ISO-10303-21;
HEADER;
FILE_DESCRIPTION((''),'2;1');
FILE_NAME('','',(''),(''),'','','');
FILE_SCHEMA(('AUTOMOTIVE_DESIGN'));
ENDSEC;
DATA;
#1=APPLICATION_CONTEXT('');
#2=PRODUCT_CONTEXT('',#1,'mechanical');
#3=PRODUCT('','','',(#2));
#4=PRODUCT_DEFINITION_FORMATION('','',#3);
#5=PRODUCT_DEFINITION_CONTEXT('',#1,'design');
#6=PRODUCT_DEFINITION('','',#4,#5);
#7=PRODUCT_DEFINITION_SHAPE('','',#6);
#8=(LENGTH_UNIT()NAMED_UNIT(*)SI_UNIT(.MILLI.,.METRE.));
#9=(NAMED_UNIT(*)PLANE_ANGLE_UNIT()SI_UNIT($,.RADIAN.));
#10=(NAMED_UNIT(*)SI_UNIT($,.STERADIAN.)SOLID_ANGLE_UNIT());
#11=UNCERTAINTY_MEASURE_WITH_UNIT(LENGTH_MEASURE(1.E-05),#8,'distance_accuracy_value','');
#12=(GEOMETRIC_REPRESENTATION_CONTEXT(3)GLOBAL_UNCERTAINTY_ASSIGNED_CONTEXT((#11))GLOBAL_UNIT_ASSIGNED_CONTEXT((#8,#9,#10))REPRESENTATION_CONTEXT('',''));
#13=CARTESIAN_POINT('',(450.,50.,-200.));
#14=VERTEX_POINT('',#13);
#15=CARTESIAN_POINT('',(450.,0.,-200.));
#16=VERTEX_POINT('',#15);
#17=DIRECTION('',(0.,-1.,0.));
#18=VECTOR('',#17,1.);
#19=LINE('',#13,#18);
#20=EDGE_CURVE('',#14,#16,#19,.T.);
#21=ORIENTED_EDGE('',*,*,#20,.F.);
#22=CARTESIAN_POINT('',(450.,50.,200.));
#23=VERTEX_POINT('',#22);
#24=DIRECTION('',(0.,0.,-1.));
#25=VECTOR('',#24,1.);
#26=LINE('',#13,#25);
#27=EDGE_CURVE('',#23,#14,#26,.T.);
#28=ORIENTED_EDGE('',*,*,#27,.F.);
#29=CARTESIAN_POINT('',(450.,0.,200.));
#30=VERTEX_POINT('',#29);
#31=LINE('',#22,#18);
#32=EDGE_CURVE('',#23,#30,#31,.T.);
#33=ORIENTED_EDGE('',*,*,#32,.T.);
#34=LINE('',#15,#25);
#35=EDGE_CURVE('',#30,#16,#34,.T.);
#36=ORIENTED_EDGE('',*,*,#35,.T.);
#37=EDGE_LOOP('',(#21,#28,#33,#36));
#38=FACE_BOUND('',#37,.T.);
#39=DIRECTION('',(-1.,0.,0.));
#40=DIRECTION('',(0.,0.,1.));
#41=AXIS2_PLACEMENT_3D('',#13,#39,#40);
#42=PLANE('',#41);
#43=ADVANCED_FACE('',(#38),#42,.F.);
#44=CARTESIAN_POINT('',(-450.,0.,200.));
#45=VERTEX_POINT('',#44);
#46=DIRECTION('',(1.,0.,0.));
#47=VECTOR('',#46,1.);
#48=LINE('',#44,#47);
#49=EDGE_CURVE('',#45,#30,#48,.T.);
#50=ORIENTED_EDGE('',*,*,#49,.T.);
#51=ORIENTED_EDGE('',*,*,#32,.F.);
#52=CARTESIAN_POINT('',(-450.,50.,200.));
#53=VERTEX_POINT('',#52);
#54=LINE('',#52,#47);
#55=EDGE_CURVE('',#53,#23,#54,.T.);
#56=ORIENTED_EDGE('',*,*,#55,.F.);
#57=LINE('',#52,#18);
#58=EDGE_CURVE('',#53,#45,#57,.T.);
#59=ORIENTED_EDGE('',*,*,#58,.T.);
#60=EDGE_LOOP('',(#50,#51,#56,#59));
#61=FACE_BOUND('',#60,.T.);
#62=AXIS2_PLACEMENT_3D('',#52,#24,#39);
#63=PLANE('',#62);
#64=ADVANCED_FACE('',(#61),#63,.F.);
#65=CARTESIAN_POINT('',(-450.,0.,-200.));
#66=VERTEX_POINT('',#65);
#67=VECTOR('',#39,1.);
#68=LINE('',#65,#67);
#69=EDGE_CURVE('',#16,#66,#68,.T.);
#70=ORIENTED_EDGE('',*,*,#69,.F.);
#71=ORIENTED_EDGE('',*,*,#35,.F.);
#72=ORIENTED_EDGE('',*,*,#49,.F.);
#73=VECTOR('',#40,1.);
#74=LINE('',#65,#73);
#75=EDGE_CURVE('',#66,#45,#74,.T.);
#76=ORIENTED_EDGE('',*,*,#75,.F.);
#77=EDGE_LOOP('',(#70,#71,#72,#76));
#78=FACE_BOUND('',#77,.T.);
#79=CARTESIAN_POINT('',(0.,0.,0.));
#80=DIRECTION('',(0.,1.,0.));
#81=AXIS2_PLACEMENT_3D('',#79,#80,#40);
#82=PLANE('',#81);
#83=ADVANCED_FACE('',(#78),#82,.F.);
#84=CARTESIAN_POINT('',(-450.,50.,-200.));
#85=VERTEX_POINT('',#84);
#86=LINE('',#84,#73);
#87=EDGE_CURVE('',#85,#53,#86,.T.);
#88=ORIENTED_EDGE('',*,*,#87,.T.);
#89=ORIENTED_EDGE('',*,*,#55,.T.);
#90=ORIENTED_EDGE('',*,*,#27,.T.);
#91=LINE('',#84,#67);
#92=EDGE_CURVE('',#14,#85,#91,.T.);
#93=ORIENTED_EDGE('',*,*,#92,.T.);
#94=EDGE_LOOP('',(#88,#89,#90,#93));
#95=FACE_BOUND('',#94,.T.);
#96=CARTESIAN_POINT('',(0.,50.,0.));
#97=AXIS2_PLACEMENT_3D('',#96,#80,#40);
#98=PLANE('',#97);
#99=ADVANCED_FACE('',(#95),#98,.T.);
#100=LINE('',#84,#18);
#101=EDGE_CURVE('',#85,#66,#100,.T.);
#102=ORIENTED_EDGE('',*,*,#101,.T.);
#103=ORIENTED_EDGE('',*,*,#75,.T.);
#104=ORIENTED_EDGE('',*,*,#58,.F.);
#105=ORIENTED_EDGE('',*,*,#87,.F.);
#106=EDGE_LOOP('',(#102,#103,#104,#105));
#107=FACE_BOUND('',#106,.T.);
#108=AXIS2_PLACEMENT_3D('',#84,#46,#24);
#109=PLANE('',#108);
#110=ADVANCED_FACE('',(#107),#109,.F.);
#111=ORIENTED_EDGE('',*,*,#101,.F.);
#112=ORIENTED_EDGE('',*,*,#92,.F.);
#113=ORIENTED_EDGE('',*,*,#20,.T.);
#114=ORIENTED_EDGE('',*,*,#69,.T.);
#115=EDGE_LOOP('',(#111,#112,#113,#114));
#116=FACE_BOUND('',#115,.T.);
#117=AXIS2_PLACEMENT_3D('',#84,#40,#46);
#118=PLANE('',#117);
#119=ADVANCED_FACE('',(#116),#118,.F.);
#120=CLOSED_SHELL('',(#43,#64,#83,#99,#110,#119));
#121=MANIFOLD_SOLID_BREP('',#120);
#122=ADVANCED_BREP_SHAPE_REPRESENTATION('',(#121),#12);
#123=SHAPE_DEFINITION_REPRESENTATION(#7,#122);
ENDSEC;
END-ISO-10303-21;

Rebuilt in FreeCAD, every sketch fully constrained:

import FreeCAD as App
import Part
import Sketcher
Q = App.Units.Quantity


def add_polygon(sketch, points):
    """Adds a closed chain of lines whose ends are joined by coincident constraints."""
    first, n = sketch.GeometryCount, len(points)
    for a, b in zip(points, points[1:] + points[:1]):
        sketch.addGeometry(Part.LineSegment(App.Vector(*a, 0), App.Vector(*b, 0)), False)
    for i in range(n):
        sketch.addConstraint(Sketcher.Constraint("Coincident", first + i, 2, first + (i + 1) % n, 1))

doc = App.newDocument("Part")
body = doc.addObject("PartDesign::Body", "Body")

# Sketch on XZ plane
sketch1 = body.newObject("Sketcher::SketchObject", "Sketch")
sketch1.AttachmentSupport = (doc.getObject("XZ_Plane"), [""])
sketch1.MapMode = "FlatFace"
add_polygon(sketch1, [(-450, -200), (-450, 200), (450, 200), (450, -200)])  # lines 0-3
sketch1.addConstraint([
    Sketcher.Constraint("Vertical", 0),
    Sketcher.Constraint("Horizontal", 1),
    Sketcher.Constraint("Vertical", 2),
    Sketcher.Constraint("Horizontal", 3),
    Sketcher.Constraint("Symmetric", 0, 2, 2, 2, -1, 1),
    Sketcher.Constraint("DistanceX", 1, 1, 1, 2, Q("900 mm")),
    Sketcher.Constraint("DistanceY", 0, 1, 0, 2, Q("400 mm")),
])
pad1 = body.newObject("PartDesign::Pad", "Pad")
pad1.Profile = sketch1
pad1.Length = 50
pad1.Reversed = True

doc.recompute()
